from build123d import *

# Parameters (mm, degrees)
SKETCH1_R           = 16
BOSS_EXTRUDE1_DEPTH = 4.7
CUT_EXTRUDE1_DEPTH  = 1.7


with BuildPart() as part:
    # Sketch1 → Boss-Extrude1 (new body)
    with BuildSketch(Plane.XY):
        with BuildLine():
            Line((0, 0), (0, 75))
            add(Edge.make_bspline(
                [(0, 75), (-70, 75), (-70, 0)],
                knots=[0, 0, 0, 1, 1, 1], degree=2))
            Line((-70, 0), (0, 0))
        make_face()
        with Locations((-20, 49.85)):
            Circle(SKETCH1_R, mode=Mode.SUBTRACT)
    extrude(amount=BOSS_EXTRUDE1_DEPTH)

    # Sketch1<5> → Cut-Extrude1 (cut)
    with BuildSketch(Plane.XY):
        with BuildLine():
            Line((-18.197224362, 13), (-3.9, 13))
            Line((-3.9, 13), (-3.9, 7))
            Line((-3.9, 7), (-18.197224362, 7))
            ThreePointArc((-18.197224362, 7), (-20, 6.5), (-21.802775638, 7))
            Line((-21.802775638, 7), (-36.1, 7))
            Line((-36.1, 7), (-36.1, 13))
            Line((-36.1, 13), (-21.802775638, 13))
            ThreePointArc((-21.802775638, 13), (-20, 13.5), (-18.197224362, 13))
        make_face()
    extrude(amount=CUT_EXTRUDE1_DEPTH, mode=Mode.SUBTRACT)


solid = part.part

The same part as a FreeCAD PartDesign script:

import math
import FreeCAD as App
import Part
import Sketcher
Q = App.Units.Quantity

doc = App.newDocument("Part")
body = doc.addObject("PartDesign::Body", "Body")

sketch1 = doc.addObject("Sketcher::SketchObject", "Sketch")
body.addObject(sketch1)
sketch1.AttachmentSupport = (doc.XY_Plane, [""])
sketch1.MapMode = "FlatFace"
sketch1.addGeometry([
    Part.LineSegment(App.Vector(0, 0, 0), App.Vector(0, 75, 0)),
    Part.BSplineCurve([App.Vector(0, 75, 0), App.Vector(-70, 75, 0), App.Vector(-70, 0, 0)], [3, 3], [0, 1], False, 2, [1, 1, 1], False),
    Part.LineSegment(App.Vector(-70, 0, 0), App.Vector(0, 0, 0)),
    Part.Circle(App.Vector(-20, 49.85, 0), App.Vector(0, 0, 1), 16),
], False)
sketch1.addConstraint([
    Sketcher.Constraint("Block", 1),
    Sketcher.Constraint("Coincident", 0, 2, 1, 1),
    Sketcher.Constraint("Coincident", 1, 2, 2, 1),
    Sketcher.Constraint("Coincident", 2, 2, 0, 1),
    Sketcher.Constraint("Vertical", 0),
    Sketcher.Constraint("Horizontal", 2),
    Sketcher.Constraint("Diameter", 3, Q("32 mm")),
    Sketcher.Constraint("DistanceX", 3, 3, -1, 1, Q("20 mm")),
    Sketcher.Constraint("DistanceY", -1, 1, 3, 3, Q("49.85 mm")),
])
pad1 = doc.addObject("PartDesign::Pad", "Pad")
body.addObject(pad1)
pad1.Profile = sketch1
pad1.Length = 4.7

sketch2 = doc.addObject("Sketcher::SketchObject", "Sketch001")
body.addObject(sketch2)
sketch2.AttachmentSupport = (doc.XY_Plane, [""])
sketch2.MapMode = "FlatFace"
sketch2.addGeometry([
    Part.LineSegment(App.Vector(-3.9, 13, 0), App.Vector(-18.197224, 13, 0)),
    Part.ArcOfCircle(Part.Circle(App.Vector(-20, 10, 0), App.Vector(0, 0, 1), 3.5), math.radians(58.997281), math.radians(121.002719)),
    Part.LineSegment(App.Vector(-21.802776, 13, 0), App.Vector(-36.1, 13, 0)),
    Part.LineSegment(App.Vector(-36.1, 13, 0), App.Vector(-36.1, 7, 0)),
    Part.LineSegment(App.Vector(-36.1, 7, 0), App.Vector(-21.802776, 7, 0)),
    Part.ArcOfCircle(Part.Circle(App.Vector(-20, 10, 0), App.Vector(0, 0, 1), 3.5), math.radians(-121.002719), math.radians(-58.997281)),
    Part.LineSegment(App.Vector(-18.197224, 7, 0), App.Vector(-3.9, 7, 0)),
    Part.LineSegment(App.Vector(-3.9, 7, 0), App.Vector(-3.9, 13, 0)),
], False)
sketch2.addConstraint([
    Sketcher.Constraint("Coincident", 0, 2, 1, 1),
    Sketcher.Constraint("Coincident", 1, 2, 2, 1),
    Sketcher.Constraint("Coincident", 2, 2, 3, 1),
    Sketcher.Constraint("Coincident", 3, 2, 4, 1),
    Sketcher.Constraint("Coincident", 4, 2, 5, 1),
    Sketcher.Constraint("Coincident", 5, 2, 6, 1),
    Sketcher.Constraint("Coincident", 6, 2, 7, 1),
    Sketcher.Constraint("Coincident", 7, 2, 0, 1),
    Sketcher.Constraint("Horizontal", 0),
    Sketcher.Constraint("Horizontal", 2),
    Sketcher.Constraint("Vertical", 3),
    Sketcher.Constraint("Horizontal", 4),
    Sketcher.Constraint("Horizontal", 6),
    Sketcher.Constraint("Vertical", 7),
    Sketcher.Constraint("Coincident", 5, 3, 1, 3),
    Sketcher.Constraint("Equal", 1, 5),
    Sketcher.Constraint("Horizontal", 0, 2, 1, 2),
    Sketcher.Constraint("Horizontal", 4, 2, 5, 2),
    Sketcher.Constraint("Vertical", 1, 2, 4, 2),
    Sketcher.Constraint("Equal", 0, 2),
    Sketcher.Constraint("Radius", 1, Q("3.5 mm")),
    Sketcher.Constraint("DistanceY", 3, 2, 3, 1, Q("6 mm")),
    Sketcher.Constraint("DistanceX", 1, 3, -1, 1, Q("20 mm")),
    Sketcher.Constraint("DistanceY", -1, 1, 1, 3, Q("10 mm")),
    Sketcher.Constraint("DistanceX", 2, 2, -1, 1, Q("36.1 mm")),
])
pocket1 = doc.addObject("PartDesign::Pocket", "Pocket")
body.addObject(pocket1)
pocket1.Profile = sketch2
pocket1.Length = 1.7
pocket1.Reversed = True

doc.recompute()
